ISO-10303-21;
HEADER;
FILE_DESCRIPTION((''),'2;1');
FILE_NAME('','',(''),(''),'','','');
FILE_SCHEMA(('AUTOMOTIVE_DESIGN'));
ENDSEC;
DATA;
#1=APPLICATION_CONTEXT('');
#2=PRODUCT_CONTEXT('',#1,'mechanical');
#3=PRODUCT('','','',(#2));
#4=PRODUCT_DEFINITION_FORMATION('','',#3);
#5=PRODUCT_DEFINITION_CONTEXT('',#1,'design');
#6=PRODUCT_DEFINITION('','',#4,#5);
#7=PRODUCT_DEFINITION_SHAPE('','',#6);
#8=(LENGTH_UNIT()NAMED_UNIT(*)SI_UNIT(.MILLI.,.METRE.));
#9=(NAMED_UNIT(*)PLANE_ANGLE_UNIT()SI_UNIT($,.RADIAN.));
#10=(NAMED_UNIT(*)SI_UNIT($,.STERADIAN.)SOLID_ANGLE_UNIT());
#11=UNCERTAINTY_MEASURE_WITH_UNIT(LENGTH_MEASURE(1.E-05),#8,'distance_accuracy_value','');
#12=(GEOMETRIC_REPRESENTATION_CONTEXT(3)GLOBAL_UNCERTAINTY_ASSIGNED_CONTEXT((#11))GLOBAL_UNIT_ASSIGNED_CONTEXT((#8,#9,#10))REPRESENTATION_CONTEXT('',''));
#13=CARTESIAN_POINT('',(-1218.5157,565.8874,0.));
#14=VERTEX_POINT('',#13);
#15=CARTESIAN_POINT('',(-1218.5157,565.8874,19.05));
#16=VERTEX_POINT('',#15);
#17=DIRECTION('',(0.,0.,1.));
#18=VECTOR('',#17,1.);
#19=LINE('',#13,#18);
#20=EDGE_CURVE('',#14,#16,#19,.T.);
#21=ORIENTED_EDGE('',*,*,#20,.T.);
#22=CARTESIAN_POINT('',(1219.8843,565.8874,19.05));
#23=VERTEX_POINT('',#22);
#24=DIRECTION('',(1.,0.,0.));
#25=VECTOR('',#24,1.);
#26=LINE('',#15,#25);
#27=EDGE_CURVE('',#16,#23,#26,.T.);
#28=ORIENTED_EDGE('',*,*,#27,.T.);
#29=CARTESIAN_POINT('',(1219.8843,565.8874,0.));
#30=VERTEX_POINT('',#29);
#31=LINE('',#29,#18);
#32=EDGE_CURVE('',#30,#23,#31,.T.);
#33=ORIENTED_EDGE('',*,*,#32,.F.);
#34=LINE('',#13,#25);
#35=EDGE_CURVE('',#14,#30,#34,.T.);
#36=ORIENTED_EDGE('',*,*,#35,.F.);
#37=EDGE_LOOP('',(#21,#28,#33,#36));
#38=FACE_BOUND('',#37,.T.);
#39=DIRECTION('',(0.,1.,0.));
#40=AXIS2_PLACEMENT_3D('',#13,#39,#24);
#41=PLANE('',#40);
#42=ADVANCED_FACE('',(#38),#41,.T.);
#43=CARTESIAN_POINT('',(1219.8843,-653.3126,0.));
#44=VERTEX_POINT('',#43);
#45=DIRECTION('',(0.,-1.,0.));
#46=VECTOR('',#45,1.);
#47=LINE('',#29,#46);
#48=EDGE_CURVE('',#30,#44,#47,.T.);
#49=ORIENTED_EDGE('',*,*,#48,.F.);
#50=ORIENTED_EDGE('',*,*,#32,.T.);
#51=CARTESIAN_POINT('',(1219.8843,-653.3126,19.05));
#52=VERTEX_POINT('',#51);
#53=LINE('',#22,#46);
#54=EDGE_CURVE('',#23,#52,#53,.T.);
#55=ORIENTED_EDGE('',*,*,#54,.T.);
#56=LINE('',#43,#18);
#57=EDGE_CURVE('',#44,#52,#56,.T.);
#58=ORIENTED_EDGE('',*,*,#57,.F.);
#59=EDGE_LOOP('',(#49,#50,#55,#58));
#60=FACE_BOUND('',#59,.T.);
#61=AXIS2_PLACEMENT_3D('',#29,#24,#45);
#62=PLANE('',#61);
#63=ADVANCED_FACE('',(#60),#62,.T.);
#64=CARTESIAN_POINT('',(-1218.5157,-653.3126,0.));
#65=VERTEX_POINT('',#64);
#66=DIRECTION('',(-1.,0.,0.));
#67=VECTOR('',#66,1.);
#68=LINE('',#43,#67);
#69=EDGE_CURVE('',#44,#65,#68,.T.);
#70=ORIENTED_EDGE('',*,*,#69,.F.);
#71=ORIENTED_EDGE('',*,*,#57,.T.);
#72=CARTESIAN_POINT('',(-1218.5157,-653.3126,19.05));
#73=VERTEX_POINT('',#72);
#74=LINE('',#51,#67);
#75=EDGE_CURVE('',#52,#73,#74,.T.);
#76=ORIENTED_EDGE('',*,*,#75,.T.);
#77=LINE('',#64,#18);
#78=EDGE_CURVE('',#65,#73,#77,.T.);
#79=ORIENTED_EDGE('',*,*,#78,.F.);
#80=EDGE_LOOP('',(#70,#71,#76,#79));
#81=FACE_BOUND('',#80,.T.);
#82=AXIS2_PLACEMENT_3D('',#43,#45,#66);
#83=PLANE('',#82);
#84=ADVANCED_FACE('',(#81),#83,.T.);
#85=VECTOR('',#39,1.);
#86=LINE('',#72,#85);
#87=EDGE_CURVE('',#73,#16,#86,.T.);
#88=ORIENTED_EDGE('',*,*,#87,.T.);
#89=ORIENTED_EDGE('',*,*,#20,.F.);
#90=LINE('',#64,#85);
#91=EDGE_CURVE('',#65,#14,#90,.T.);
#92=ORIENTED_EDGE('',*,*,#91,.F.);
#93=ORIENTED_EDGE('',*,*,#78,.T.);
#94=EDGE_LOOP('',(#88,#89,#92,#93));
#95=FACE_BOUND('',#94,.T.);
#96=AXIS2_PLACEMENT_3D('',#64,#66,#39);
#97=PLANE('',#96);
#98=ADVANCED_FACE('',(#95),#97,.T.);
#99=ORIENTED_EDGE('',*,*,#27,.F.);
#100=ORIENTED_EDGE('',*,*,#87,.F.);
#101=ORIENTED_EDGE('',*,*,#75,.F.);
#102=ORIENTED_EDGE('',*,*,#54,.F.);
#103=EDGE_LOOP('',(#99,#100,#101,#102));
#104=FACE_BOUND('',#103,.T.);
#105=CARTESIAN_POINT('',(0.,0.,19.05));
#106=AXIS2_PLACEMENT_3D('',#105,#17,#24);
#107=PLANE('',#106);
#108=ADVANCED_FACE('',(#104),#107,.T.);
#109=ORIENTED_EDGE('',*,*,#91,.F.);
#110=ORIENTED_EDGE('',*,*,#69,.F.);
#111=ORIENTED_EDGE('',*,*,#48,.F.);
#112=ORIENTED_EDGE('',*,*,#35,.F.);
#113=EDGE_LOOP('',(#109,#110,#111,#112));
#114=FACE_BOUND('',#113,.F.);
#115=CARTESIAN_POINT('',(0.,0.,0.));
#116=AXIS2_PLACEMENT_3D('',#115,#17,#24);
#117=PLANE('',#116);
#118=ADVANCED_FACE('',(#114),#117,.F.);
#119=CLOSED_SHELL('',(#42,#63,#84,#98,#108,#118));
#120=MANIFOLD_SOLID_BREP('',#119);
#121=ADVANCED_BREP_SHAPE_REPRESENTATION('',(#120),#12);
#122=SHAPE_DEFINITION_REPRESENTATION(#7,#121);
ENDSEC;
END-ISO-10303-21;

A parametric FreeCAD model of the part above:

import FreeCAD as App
import Part
import Sketcher

V = App.Vector
Q = App.Units.Quantity

doc = App.newDocument("Part")
body = doc.addObject("PartDesign::Body", "Body")

# Sketch on XY plane
sketch1 = doc.addObject("Sketcher::SketchObject", "Sketch")
body.addObject(sketch1)
sketch1.AttachmentSupport = (doc.XY_Plane, [""])
sketch1.MapMode = "FlatFace"
sketch1.addGeometry(Part.LineSegment(V(1220, 566, 0), V(-1219, 566, 0)), False)
sketch1.addGeometry(Part.LineSegment(V(-1219, 566, 0), V(-1219, -653, 0)), False)
sketch1.addGeometry(Part.LineSegment(V(-1219, -653, 0), V(1220, -653, 0)), False)
sketch1.addGeometry(Part.LineSegment(V(1220, -653, 0), V(1220, 566, 0)), False)
sketch1.addConstraint(Sketcher.Constraint("Coincident", 0, 2, 1, 1))
sketch1.addConstraint(Sketcher.Constraint("Coincident", 1, 2, 2, 1))
sketch1.addConstraint(Sketcher.Constraint("Coincident", 2, 2, 3, 1))
sketch1.addConstraint(Sketcher.Constraint("Coincident", 3, 2, 0, 1))
sketch1.addConstraint(Sketcher.Constraint("Horizontal", 0))
sketch1.addConstraint(Sketcher.Constraint("Vertical", 1))
sketch1.addConstraint(Sketcher.Constraint("Horizontal", 2))
sketch1.addConstraint(Sketcher.Constraint("Vertical", 3))
sketch1.addConstraint(Sketcher.Constraint("DistanceX", 0, 2, 0, 1, Q("96 in")))
sketch1.addConstraint(Sketcher.Constraint("DistanceY", 1, 2, 1, 1, Q("48 in")))
sketch1.addConstraint(Sketcher.Constraint("DistanceX", 0, 2, -1, 1, Q("1218.5157 mm")))
sketch1.addConstraint(Sketcher.Constraint("DistanceY", -1, 1, 0, 2, Q("565.8874 mm")))
pad1 = doc.addObject("PartDesign::Pad", "Pad")
body.addObject(pad1)
pad1.Profile = sketch1
pad1.Length = Q("0.75 in")

doc.recompute()
